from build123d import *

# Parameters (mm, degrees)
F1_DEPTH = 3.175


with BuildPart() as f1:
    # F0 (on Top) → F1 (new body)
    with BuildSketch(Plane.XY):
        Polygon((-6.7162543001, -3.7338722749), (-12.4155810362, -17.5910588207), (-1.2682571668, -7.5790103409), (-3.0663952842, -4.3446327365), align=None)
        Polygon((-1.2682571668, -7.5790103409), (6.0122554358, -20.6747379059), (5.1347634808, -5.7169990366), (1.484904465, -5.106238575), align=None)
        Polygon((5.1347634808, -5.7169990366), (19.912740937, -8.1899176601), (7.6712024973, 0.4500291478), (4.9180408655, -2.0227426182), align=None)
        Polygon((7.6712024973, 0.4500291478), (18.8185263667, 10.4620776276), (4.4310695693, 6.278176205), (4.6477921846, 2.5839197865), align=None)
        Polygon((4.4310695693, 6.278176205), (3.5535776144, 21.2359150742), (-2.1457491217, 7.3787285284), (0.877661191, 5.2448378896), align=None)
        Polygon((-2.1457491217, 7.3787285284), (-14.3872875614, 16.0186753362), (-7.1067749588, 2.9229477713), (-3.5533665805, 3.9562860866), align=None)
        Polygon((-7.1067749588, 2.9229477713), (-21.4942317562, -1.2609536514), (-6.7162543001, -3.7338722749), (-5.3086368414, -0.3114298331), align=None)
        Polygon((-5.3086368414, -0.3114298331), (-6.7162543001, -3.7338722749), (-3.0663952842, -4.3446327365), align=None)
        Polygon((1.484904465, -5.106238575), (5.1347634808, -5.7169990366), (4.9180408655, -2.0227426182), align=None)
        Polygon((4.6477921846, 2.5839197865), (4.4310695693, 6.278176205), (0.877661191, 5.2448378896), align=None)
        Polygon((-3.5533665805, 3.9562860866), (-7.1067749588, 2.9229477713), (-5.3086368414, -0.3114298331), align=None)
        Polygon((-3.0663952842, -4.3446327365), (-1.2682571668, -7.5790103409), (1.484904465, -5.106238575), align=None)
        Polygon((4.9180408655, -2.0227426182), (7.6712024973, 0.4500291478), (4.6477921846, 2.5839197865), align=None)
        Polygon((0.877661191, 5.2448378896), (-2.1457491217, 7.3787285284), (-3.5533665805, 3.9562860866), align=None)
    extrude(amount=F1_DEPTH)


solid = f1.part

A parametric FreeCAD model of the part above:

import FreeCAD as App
import Part
import Sketcher

V = App.Vector
Q = App.Units.Quantity

doc = App.newDocument("Part")
params = doc.addObject("Spreadsheet::Sheet", "Params")
for row, (alias, value) in enumerate([
    ("pad1_length", "0.125 in"),
], start=1):
    params.set(f"A{row}", alias)
    params.set(f"B{row}", "=" + value)
    params.setAlias(f"B{row}", alias)

body = doc.addObject("PartDesign::Body", "Body")

sketch1 = body.newObject("Sketcher::SketchObject", "Sketch")
sketch1.AttachmentSupport = (doc.getObject("XY_Plane"), [""])
sketch1.MapMode = "FlatFace"
sketch1.addGeometry(Part.LineSegment(V(3.553578, 21.235915, 0), V(-2.145749, 7.378729, 0)), False)
sketch1.addGeometry(Part.LineSegment(V(-2.145749, 7.378729, 0), V(-14.387288, 16.018675, 0)), False)
sketch1.addGeometry(Part.LineSegment(V(-14.387288, 16.018675, 0), V(-7.106775, 2.922948, 0)), False)
sketch1.addGeometry(Part.LineSegment(V(-7.106775, 2.922948, 0), V(-21.494232, -1.260954, 0)), False)
sketch1.addGeometry(Part.LineSegment(V(-21.494232, -1.260954, 0), V(-6.716254, -3.733872, 0)), False)
sketch1.addGeometry(Part.LineSegment(V(-6.716254, -3.733872, 0), V(-12.415581, -17.591059, 0)), False)
sketch1.addGeometry(Part.LineSegment(V(-12.415581, -17.591059, 0), V(-1.268257, -7.57901, 0)), False)
sketch1.addGeometry(Part.LineSegment(V(-1.268257, -7.57901, 0), V(6.012255, -20.674738, 0)), False)
sketch1.addGeometry(Part.LineSegment(V(6.012255, -20.674738, 0), V(5.134763, -5.716999, 0)), False)
sketch1.addGeometry(Part.LineSegment(V(5.134763, -5.716999, 0), V(19.912741, -8.189918, 0)), False)
sketch1.addGeometry(Part.LineSegment(V(19.912741, -8.189918, 0), V(7.671202, 0.450029, 0)), False)
sketch1.addGeometry(Part.LineSegment(V(7.671202, 0.450029, 0), V(18.818526, 10.462078, 0)), False)
sketch1.addGeometry(Part.LineSegment(V(18.818526, 10.462078, 0), V(4.43107, 6.278176, 0)), False)
sketch1.addGeometry(Part.LineSegment(V(4.43107, 6.278176, 0), V(3.553578, 21.235915, 0)), False)
sketch1.addGeometry(Part.LineSegment(V(-5.308637, -0.31143, 0), V(-3.553367, 3.956286, 0)), False)
sketch1.addGeometry(Part.LineSegment(V(-3.553367, 3.956286, 0), V(0.877661, 5.244838, 0)), False)
sketch1.addGeometry(Part.LineSegment(V(0.877661, 5.244838, 0), V(4.647792, 2.58392, 0)), False)
sketch1.addGeometry(Part.LineSegment(V(4.647792, 2.58392, 0), V(4.918041, -2.022743, 0)), False)
sketch1.addGeometry(Part.LineSegment(V(4.918041, -2.022743, 0), V(1.484904, -5.106239, 0)), False)
sketch1.addGeometry(Part.LineSegment(V(1.484904, -5.106239, 0), V(-3.066395, -4.344633, 0)), False)
sketch1.addGeometry(Part.LineSegment(V(-3.066395, -4.344633, 0), V(-5.308637, -0.31143, 0)), False)
sketch1.addConstraint(Sketcher.Constraint("Coincident", 0, 2, 1, 1))
sketch1.addConstraint(Sketcher.Constraint("Coincident", 1, 2, 2, 1))
sketch1.addConstraint(Sketcher.Constraint("Coincident", 2, 2, 3, 1))
sketch1.addConstraint(Sketcher.Constraint("Coincident", 3, 2, 4, 1))
sketch1.addConstraint(Sketcher.Constraint("Coincident", 4, 2, 5, 1))
sketch1.addConstraint(Sketcher.Constraint("Coincident", 5, 2, 6, 1))
sketch1.addConstraint(Sketcher.Constraint("Coincident", 6, 2, 7, 1))
sketch1.addConstraint(Sketcher.Constraint("Coincident", 7, 2, 8, 1))
sketch1.addConstraint(Sketcher.Constraint("Coincident", 8, 2, 9, 1))
sketch1.addConstraint(Sketcher.Constraint("Coincident", 9, 2, 10, 1))
sketch1.addConstraint(Sketcher.Constraint("Coincident", 10, 2, 11, 1))
sketch1.addConstraint(Sketcher.Constraint("Coincident", 11, 2, 12, 1))
sketch1.addConstraint(Sketcher.Constraint("Coincident", 12, 2, 13, 1))
sketch1.addConstraint(Sketcher.Constraint("Coincident", 13, 2, 0, 1))
sketch1.addConstraint(Sketcher.Constraint("Coincident", 14, 2, 15, 1))
sketch1.addConstraint(Sketcher.Constraint("Coincident", 15, 2, 16, 1))
sketch1.addConstraint(Sketcher.Constraint("Coincident", 16, 2, 17, 1))
sketch1.addConstraint(Sketcher.Constraint("Coincident", 17, 2, 18, 1))
sketch1.addConstraint(Sketcher.Constraint("Coincident", 18, 2, 19, 1))
sketch1.addConstraint(Sketcher.Constraint("Coincident", 19, 2, 20, 1))
sketch1.addConstraint(Sketcher.Constraint("Coincident", 20, 2, 14, 1))
sketch1.addConstraint(Sketcher.Constraint("Parallel", 0, 5))
sketch1.addConstraint(Sketcher.Constraint("Parallel", 2, 7))
sketch1.addConstraint(Sketcher.Constraint("Parallel", 4, 9))
sketch1.addConstraint(Sketcher.Constraint("Parallel", 1, 10))
sketch1.addConstraint(Sketcher.Constraint("Parallel", 6, 11))
sketch1.addConstraint(Sketcher.Constraint("Parallel", 3, 12))
sketch1.addConstraint(Sketcher.Constraint("Parallel", 8, 13))
sketch1.addConstraint(Sketcher.Constraint("Parallel", 5, 14))
sketch1.addConstraint(Sketcher.Constraint("Parallel", 12, 15))
sketch1.addConstraint(Sketcher.Constraint("Parallel", 10, 16))
sketch1.addConstraint(Sketcher.Constraint("Parallel", 13, 17))
sketch1.addConstraint(Sketcher.Constraint("Parallel", 11, 18))
sketch1.addConstraint(Sketcher.Constraint("Parallel", 9, 19))
sketch1.addConstraint(Sketcher.Constraint("Parallel", 7, 20))
sketch1.addConstraint(Sketcher.Constraint("Equal", 0, 1))
sketch1.addConstraint(Sketcher.Constraint("Equal", 1, 2))
sketch1.addConstraint(Sketcher.Constraint("Equal", 2, 3))
sketch1.addConstraint(Sketcher.Constraint("Equal", 3, 4))
sketch1.addConstraint(Sketcher.Constraint("Equal", 4, 5))
sketch1.addConstraint(Sketcher.Constraint("Equal", 5, 6))
sketch1.addConstraint(Sketcher.Constraint("Equal", 6, 7))
sketch1.addConstraint(Sketcher.Constraint("Equal", 7, 8))
sketch1.addConstraint(Sketcher.Constraint("Equal", 8, 9))
sketch1.addConstraint(Sketcher.Constraint("Equal", 9, 10))
sketch1.addConstraint(Sketcher.Constraint("Equal", 10, 11))
sketch1.addConstraint(Sketcher.Constraint("Equal", 11, 12))
sketch1.addConstraint(Sketcher.Constraint("Equal", 12, 13))
sketch1.addConstraint(Sketcher.Constraint("Equal", 14, 15))
sketch1.addConstraint(Sketcher.Constraint("Equal", 15, 16))
sketch1.addConstraint(Sketcher.Constraint("Equal", 16, 17))
sketch1.addConstraint(Sketcher.Constraint("Equal", 17, 18))
sketch1.addConstraint(Sketcher.Constraint("Distance", 0, Q("0.5898998 in")))
sketch1.addConstraint(Sketcher.Constraint("DistanceY", 8, 2, -1, 1, 5.716999))
sketch1.addConstraint(Sketcher.Constraint("DistanceY", 3, 2, 2, 2, 4.183901))
sketch1.addConstraint(Sketcher.Constraint("DistanceY", 4, 2, 0, 2, 11.112601))
sketch1.addConstraint(Sketcher.Constraint("DistanceX", 6, 2, 9, 2, 21.180998))
sketch1.addConstraint(Sketcher.Constraint("DistanceX", 2, 2, 11, 2, 25.925301))
sketch1.addConstraint(Sketcher.Constraint("DistanceX", 18, 2, 10, 2, 6.186298))
sketch1.addConstraint(Sketcher.Constraint("DistanceX", 19, 2, 18, 2, 4.5513))
sketch1.addConstraint(Sketcher.Constraint("DistanceX", 0, 2, -1, 1, 2.145749))
sketch1.addConstraint(Sketcher.Constraint("DistanceY", -1, 1, 0, 2, 7.378729))
sketch1.addConstraint(Sketcher.Constraint("DistanceY", -1, 1, 16, 2, 2.58392))
pad1 = body.newObject("PartDesign::Pad", "Pad")
pad1.Profile = sketch1
pad1.setExpression("Length", "Params.pad1_length")

doc.recompute()
